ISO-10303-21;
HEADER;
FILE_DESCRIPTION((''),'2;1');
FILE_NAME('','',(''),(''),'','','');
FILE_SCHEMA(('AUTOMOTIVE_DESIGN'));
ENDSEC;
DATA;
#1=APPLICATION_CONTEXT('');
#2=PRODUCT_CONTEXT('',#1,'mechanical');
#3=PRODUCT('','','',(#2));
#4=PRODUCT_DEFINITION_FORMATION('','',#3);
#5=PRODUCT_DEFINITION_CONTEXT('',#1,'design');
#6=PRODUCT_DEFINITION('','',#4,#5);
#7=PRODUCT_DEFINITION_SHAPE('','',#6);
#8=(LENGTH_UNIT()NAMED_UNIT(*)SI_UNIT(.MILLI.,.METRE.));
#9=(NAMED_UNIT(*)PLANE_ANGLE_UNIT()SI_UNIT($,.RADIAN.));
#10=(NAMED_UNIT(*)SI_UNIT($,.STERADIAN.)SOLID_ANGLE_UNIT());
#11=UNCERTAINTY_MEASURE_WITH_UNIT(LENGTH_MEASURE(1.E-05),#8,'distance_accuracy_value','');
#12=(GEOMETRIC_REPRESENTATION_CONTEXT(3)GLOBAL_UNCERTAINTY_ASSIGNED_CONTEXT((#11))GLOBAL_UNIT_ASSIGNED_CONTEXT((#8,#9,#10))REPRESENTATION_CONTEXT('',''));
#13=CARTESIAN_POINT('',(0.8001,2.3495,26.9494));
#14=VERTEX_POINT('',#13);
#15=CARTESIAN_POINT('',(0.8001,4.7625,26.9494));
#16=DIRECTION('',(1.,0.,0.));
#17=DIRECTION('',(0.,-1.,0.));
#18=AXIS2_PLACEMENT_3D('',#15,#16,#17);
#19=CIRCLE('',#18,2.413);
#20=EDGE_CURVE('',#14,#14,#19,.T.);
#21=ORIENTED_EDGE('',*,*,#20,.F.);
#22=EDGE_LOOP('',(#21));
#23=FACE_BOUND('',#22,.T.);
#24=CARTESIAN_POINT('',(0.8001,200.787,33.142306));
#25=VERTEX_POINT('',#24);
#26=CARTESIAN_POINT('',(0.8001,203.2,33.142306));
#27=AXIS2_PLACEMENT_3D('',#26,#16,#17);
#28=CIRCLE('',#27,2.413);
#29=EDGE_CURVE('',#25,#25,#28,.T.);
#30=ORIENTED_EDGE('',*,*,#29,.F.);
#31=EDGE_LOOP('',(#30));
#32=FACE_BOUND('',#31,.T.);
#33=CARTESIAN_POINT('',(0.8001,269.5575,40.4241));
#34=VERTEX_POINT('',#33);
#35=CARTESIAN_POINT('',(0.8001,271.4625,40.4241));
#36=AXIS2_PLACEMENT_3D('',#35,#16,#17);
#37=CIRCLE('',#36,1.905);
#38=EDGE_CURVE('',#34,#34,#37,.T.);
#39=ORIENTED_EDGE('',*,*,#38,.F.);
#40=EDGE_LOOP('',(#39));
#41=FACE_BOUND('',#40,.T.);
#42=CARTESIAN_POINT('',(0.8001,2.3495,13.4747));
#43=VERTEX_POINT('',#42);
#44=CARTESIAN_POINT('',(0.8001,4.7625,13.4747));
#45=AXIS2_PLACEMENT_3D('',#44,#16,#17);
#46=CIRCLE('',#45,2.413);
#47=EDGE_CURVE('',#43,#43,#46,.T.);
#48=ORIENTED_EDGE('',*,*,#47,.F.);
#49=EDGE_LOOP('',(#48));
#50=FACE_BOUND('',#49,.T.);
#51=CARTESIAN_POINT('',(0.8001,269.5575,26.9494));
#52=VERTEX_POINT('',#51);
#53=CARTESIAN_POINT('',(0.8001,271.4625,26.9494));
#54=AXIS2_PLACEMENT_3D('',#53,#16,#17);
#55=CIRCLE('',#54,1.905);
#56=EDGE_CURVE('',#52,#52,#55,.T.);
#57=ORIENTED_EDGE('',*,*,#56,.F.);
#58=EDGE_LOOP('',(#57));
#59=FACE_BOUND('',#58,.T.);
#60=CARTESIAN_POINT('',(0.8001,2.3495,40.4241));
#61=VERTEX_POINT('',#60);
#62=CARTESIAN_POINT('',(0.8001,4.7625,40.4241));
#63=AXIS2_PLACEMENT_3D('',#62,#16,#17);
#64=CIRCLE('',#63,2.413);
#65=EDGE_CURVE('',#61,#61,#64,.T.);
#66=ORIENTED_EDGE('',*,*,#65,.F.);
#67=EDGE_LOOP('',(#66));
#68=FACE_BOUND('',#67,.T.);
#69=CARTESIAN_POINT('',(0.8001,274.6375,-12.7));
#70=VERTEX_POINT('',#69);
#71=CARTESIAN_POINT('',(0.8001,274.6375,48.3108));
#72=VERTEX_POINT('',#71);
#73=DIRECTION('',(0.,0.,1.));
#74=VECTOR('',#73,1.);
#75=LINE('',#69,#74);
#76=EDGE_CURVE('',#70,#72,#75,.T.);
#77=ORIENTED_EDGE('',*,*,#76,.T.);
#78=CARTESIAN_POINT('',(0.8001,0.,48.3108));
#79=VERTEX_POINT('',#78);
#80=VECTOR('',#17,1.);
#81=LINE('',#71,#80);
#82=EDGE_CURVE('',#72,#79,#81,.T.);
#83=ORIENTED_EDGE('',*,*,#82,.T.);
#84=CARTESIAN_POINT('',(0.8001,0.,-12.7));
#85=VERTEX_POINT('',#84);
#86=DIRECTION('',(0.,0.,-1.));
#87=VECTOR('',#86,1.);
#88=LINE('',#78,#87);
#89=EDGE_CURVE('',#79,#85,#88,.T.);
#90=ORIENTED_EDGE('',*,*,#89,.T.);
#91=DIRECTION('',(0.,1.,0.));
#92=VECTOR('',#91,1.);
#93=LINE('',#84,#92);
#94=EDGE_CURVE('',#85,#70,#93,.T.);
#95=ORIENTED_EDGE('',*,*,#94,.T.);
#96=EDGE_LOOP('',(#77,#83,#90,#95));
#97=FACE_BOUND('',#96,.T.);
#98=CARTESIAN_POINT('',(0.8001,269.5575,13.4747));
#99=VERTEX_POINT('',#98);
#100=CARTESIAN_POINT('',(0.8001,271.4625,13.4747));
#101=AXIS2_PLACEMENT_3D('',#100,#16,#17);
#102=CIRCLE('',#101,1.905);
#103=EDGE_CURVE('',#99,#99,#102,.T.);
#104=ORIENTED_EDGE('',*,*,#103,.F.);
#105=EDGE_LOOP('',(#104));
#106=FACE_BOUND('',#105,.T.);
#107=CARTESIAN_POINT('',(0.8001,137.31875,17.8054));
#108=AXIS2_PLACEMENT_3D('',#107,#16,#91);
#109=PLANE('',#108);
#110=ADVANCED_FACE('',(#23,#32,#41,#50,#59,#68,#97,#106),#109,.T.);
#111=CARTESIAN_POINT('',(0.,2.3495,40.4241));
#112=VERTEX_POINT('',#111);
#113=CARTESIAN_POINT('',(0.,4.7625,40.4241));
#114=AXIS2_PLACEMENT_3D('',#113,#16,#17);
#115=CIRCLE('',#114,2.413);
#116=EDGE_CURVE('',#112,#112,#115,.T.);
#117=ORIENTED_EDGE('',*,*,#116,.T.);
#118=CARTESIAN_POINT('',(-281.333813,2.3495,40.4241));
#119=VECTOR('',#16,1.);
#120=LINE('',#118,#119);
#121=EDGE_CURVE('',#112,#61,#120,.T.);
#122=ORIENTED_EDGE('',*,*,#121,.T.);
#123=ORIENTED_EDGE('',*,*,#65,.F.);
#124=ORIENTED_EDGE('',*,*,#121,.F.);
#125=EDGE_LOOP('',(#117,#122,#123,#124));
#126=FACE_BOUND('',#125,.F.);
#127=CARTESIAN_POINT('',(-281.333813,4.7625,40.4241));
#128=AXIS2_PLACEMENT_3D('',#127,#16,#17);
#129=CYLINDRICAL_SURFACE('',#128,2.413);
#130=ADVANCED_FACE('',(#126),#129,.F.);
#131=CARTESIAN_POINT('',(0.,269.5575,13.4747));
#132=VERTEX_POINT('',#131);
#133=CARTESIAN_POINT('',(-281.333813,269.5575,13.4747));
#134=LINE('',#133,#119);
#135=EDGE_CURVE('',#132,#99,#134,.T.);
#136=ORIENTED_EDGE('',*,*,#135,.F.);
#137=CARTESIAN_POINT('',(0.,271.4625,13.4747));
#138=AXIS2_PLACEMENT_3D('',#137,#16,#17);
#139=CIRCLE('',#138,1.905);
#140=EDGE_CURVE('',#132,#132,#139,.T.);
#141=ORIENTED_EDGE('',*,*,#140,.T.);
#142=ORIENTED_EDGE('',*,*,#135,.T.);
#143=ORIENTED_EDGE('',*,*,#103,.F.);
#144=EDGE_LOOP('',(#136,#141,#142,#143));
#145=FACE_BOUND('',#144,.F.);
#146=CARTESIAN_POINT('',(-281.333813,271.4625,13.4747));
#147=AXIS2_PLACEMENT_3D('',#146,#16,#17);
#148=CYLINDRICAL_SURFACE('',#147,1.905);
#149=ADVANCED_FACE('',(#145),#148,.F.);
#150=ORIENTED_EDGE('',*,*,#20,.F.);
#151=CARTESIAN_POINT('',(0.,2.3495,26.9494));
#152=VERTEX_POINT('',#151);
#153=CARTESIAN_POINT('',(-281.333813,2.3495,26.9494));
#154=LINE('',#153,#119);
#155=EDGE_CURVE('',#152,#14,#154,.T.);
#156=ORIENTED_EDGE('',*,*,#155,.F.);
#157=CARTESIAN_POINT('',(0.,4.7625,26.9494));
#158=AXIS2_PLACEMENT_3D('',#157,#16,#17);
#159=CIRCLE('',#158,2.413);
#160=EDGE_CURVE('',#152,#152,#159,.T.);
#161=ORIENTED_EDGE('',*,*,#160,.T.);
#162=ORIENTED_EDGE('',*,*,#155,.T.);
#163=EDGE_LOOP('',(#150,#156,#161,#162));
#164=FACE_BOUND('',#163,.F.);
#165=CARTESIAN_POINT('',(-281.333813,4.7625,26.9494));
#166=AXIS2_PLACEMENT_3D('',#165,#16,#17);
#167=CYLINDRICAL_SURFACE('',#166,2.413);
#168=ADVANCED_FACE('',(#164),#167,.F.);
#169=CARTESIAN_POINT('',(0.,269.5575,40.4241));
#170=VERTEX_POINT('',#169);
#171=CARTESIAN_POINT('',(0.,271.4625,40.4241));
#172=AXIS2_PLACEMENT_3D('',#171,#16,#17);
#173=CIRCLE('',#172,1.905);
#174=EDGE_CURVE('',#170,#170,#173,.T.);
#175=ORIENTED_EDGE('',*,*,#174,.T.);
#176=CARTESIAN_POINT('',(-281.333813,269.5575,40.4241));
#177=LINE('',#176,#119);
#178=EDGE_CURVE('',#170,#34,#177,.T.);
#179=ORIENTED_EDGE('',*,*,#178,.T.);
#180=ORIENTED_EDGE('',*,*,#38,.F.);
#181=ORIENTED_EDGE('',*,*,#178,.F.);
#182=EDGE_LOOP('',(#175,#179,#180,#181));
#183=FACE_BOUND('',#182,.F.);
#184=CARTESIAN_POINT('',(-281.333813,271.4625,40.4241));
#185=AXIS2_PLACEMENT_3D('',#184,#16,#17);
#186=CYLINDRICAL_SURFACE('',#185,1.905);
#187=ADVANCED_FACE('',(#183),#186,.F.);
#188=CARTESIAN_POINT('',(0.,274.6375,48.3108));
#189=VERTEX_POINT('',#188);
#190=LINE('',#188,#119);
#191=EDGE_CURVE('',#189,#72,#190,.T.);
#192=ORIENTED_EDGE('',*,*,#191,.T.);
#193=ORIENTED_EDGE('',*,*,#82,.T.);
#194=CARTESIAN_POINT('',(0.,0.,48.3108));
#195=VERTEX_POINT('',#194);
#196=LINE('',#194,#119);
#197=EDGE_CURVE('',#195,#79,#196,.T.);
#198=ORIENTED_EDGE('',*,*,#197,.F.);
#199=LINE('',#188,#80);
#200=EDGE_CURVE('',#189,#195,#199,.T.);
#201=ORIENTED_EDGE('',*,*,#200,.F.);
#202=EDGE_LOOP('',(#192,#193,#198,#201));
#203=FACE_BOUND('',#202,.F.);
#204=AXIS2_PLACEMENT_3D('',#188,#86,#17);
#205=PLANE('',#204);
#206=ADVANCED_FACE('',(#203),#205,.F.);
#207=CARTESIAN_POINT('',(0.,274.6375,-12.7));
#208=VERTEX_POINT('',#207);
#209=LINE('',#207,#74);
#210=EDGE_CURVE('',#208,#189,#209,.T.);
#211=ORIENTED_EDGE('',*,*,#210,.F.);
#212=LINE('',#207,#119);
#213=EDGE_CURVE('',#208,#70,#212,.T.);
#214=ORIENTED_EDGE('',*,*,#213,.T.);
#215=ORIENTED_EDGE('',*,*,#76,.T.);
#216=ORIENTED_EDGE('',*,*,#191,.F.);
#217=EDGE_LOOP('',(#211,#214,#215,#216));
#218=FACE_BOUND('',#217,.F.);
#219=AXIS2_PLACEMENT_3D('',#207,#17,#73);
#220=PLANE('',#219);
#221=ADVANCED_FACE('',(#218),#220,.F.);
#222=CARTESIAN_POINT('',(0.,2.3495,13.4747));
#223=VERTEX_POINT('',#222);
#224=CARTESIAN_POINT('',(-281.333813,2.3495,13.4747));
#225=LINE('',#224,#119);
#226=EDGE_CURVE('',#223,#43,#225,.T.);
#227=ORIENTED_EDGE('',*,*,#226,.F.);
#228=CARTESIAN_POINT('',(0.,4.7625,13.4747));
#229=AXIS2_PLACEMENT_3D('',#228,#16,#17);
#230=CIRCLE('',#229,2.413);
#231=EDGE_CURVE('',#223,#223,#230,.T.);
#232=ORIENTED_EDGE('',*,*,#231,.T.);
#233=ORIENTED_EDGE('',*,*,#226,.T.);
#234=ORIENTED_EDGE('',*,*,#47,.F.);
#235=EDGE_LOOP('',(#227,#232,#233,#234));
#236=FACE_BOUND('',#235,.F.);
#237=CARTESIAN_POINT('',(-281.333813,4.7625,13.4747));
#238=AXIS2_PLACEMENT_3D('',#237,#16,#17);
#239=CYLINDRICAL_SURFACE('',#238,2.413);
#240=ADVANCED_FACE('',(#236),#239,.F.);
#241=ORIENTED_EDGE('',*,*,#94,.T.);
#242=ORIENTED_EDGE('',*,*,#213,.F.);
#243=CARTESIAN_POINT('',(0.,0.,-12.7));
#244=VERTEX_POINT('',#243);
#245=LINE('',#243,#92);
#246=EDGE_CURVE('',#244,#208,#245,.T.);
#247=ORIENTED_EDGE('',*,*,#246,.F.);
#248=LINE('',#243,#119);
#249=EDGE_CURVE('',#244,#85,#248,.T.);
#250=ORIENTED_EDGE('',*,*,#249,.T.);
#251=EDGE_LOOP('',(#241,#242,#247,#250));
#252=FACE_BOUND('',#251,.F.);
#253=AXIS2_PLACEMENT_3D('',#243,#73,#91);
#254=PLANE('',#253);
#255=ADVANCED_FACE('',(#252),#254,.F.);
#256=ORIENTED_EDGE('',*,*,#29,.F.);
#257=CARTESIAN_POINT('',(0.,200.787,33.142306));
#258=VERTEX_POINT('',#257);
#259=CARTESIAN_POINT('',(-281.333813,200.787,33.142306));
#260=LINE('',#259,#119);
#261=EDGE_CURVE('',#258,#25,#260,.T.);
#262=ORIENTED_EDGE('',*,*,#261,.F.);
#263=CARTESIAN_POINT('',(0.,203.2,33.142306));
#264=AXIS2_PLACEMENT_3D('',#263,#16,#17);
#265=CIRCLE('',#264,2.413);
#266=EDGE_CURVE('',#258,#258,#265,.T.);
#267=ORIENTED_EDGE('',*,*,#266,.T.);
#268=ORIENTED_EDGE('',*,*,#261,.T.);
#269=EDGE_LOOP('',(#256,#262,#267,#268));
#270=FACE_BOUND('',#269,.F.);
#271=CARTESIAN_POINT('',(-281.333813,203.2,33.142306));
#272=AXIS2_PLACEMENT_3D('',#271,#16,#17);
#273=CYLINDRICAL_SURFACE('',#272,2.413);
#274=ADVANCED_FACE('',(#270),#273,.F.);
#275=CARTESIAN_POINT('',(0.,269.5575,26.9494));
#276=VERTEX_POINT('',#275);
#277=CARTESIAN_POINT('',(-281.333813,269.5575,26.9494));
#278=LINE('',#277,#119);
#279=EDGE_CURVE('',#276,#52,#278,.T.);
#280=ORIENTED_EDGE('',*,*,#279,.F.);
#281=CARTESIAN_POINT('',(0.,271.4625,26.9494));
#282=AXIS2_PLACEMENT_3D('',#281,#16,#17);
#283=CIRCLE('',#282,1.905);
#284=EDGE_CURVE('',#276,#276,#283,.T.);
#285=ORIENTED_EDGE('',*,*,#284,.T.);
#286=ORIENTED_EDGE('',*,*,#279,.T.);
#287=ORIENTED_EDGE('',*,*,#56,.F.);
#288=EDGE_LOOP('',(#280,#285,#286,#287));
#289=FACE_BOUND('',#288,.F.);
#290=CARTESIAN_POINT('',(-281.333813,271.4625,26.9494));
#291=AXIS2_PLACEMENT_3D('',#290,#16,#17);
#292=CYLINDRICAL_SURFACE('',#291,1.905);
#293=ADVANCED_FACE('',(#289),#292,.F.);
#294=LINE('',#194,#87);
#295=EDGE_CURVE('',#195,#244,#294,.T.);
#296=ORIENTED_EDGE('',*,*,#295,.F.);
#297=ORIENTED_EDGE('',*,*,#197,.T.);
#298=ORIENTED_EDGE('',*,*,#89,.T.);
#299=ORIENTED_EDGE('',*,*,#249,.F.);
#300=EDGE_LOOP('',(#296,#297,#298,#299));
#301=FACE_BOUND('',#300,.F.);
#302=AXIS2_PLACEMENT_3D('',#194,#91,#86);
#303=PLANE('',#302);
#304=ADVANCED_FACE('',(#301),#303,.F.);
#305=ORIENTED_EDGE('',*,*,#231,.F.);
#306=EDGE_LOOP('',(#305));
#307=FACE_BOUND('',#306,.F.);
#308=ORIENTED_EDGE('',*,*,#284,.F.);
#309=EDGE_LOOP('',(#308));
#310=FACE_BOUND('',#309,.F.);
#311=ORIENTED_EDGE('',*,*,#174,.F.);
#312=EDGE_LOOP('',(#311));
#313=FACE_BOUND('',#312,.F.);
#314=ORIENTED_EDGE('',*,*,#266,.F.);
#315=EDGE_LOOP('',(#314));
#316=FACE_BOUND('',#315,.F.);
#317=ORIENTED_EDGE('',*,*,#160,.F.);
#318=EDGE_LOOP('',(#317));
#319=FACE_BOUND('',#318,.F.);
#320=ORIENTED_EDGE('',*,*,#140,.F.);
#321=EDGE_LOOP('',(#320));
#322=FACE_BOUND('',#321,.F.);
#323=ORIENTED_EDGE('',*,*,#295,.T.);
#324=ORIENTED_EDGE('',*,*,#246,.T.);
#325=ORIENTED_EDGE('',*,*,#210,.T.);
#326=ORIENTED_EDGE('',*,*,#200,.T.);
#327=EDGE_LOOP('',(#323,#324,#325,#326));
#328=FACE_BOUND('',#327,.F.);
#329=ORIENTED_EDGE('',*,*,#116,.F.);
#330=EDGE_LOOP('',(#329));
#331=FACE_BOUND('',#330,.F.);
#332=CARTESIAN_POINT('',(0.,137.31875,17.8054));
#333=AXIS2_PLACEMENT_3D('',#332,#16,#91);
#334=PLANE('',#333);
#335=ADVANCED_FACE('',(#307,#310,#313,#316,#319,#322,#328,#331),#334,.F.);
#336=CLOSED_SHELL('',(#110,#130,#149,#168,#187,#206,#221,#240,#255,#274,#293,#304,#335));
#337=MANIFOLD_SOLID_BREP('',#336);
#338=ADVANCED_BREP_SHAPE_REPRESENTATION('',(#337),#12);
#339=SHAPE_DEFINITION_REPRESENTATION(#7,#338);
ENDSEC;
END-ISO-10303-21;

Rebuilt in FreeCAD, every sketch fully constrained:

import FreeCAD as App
import Part
import Sketcher
from FreeCAD import Vector
Q = App.Units.Quantity


def add_polygon(sketch, points):
    """Adds a closed chain of lines whose ends are joined by coincident constraints."""
    first, n = sketch.GeometryCount, len(points)
    for a, b in zip(points, points[1:] + points[:1]):
        sketch.addGeometry(Part.LineSegment(App.Vector(*a, 0), App.Vector(*b, 0)), False)
    for i in range(n):
        sketch.addConstraint(Sketcher.Constraint("Coincident", first + i, 2, first + (i + 1) % n, 1))

doc = App.newDocument("Part")
params = doc.addObject("Spreadsheet::Sheet", "Params")
for row, (alias, value) in enumerate([
    ("sketch1_width", "10.8125 in"),
    ("sketch1_height", "2.402 in"),
    ("pad1_length", "0.0315 in"),
    ("sketch2_diameter", "0.19 in"),
    ("hole_diameter", "0.19 in"),
    ("sketch3_diameter", "0.15 in"),
    ("hole2_diameter", "0.15 in"),
], start=1):
    params.set(f"A{row}", alias)
    params.set(f"B{row}", "=" + value)
    params.setAlias(f"B{row}", alias)

body = doc.addObject("PartDesign::Body", "Body")

# Sketch on YZ plane
sketch1 = body.newObject("Sketcher::SketchObject", "Sketch")
sketch1.AttachmentSupport = (doc.getObject("YZ_Plane"), [""])
sketch1.MapMode = "FlatFace"
add_polygon(sketch1, [(275, -13), (275, 48), (0, 48), (0, -13)])  # lines 0-3
sketch1.addConstraint([
    Sketcher.Constraint("Vertical", 0),
    Sketcher.Constraint("Horizontal", 1),
    Sketcher.Constraint("Vertical", 2),
    Sketcher.Constraint("Horizontal", 3),
    Sketcher.Constraint("PointOnObject", 1, 2, -2),
    Sketcher.Constraint("DistanceY", 2, 2, -1, 1, Q("0.5 in")),
    Sketcher.Constraint("DistanceX", 1, 2, 1, 1, Q("10.8125 in")),
    Sketcher.Constraint("DistanceY", 0, 1, 0, 2, Q("2.402 in")),
])
sketch1.setExpression("Constraints[10]", "Params.sketch1_width")
sketch1.setExpression("Constraints[11]", "Params.sketch1_height")
pad1 = body.newObject("PartDesign::Pad", "Pad")
pad1.Profile = sketch1
pad1.setExpression("Length", "Params.pad1_length")

# Sketch on YZ plane
sketch2 = body.newObject("Sketcher::SketchObject", "Sketch001")
sketch2.AttachmentSupport = (doc.getObject("YZ_Plane"), [""])
sketch2.MapMode = "FlatFace"
sketch2.addGeometry([
    Part.Circle(Vector(4.8, 40.4, 0), Vector(0, 0, 1), 2.4),
    Part.Circle(Vector(4.8, 26.9, 0), Vector(0, 0, 1), 2.4),
    Part.Circle(Vector(4.8, 13.5, 0), Vector(0, 0, 1), 2.4),
    Part.Circle(Vector(203.2, 33.1, 0), Vector(0, 0, 1), 2.4),
], False)
sketch2.addConstraint([
    Sketcher.Constraint("Equal", 0, 1),
    Sketcher.Constraint("Equal", 1, 2),
    Sketcher.Constraint("Equal", 2, 3),
    Sketcher.Constraint("Vertical", 0, 3, 1, 3),
    Sketcher.Constraint("Vertical", 1, 3, 2, 3),
    Sketcher.Constraint("Diameter", 0, Q("0.19 in")),
    Sketcher.Constraint("DistanceX", -1, 1, 3, 3, Q("8 in")),
    Sketcher.Constraint("DistanceX", -1, 1, 0, 3, Q("0.1875 in")),
    Sketcher.Constraint("DistanceY", -1, 1, 1, 3, Q("1.061 in")),
    Sketcher.Constraint("DistanceY", 2, 3, 0, 3, Q("1.061 in")),
    Sketcher.Constraint("DistanceY", -1, 1, 0, 3, Q("1.5915 in")),
    Sketcher.Constraint("DistanceY", -1, 1, 3, 3, Q("33.142306 mm")),
])
sketch2.setExpression("Constraints[5]", "Params.sketch2_diameter")
doc.recompute()
hole = body.newObject("PartDesign::Hole", "Hole")
hole.Profile = sketch2
hole.ThreadType = "None"
hole.setExpression("Diameter", "Params.hole_diameter")
hole.DepthType = "ThroughAll"
hole.Reversed = True

# Sketch on YZ plane
sketch3 = body.newObject("Sketcher::SketchObject", "Sketch002")
sketch3.AttachmentSupport = (doc.getObject("YZ_Plane"), [""])
sketch3.MapMode = "FlatFace"
sketch3.addGeometry([
    Part.Circle(Vector(271.5, 40.4, 0), Vector(0, 0, 1), 1.9),
    Part.Circle(Vector(271.5, 26.9, 0), Vector(0, 0, 1), 1.9),
    Part.Circle(Vector(271.5, 13.5, 0), Vector(0, 0, 1), 1.9),
], False)
sketch3.addConstraint([
    Sketcher.Constraint("Equal", 0, 1),
    Sketcher.Constraint("Equal", 1, 2),
    Sketcher.Constraint("Vertical", 0, 3, 1, 3),
    Sketcher.Constraint("Vertical", 1, 3, 2, 3),
    Sketcher.Constraint("Diameter", 0, Q("0.15 in")),
    Sketcher.Constraint("DistanceX", -1, 1, 0, 3, Q("10.6875 in")),
    Sketcher.Constraint("DistanceY", -1, 1, 1, 3, Q("1.061 in")),
    Sketcher.Constraint("DistanceY", 2, 3, 0, 3, Q("1.061 in")),
    Sketcher.Constraint("DistanceY", -1, 1, 0, 3, Q("1.5915 in")),
])
sketch3.setExpression("Constraints[4]", "Params.sketch3_diameter")
doc.recompute()
hole2 = body.newObject("PartDesign::Hole", "Hole001")
hole2.Profile = sketch3
hole2.ThreadType = "None"
hole2.setExpression("Diameter", "Params.hole2_diameter")
hole2.DepthType = "ThroughAll"
hole2.Reversed = True

doc.recompute()
